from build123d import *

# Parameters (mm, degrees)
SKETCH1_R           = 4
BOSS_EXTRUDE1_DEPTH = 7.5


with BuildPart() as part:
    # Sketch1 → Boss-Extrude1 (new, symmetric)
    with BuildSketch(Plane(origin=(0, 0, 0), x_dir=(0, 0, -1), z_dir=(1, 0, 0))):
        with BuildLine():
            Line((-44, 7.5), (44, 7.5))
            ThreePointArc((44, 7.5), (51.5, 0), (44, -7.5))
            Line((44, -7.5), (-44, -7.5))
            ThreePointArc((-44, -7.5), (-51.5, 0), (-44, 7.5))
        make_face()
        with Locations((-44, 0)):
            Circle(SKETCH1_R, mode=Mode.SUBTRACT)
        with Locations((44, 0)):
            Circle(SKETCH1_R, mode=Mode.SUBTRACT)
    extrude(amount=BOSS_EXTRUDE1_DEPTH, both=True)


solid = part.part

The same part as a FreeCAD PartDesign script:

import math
import FreeCAD as App
import Part
import Sketcher
Q = App.Units.Quantity

doc = App.newDocument("Part")
body = doc.addObject("PartDesign::Body", "Body")

# Sketch on YZ plane
sketch1 = body.newObject("Sketcher::SketchObject", "Sketch")
sketch1.AttachmentSupport = (doc.getObject("YZ_Plane"), [""])
sketch1.MapMode = "FlatFace"
sketch1.addGeometry([
    Part.LineSegment(App.Vector(7.5, -44, 0), App.Vector(7.5, 44, 0)),  # 0
    Part.ArcOfCircle(Part.Circle(App.Vector(0, 44, 0), App.Vector(0, 0, 1), 7.5), math.radians(0), math.radians(180)),  # 1
    Part.LineSegment(App.Vector(-7.5, 44, 0), App.Vector(-7.5, -44, 0)),  # 2
    Part.ArcOfCircle(Part.Circle(App.Vector(0, -44, 0), App.Vector(0, 0, 1), 7.5), math.radians(180), math.radians(360)),  # 3
    Part.Circle(App.Vector(0, -44, 0), App.Vector(0, 0, 1), 4),  # 4
    Part.Circle(App.Vector(0, 44, 0), App.Vector(0, 0, 1), 4),  # 5
], False)
sketch1.addConstraint([
    Sketcher.Constraint("Tangent", 0, 2, 1, 1),
    Sketcher.Constraint("Tangent", 1, 2, 2, 1),
    Sketcher.Constraint("Tangent", 2, 2, 3, 1),
    Sketcher.Constraint("Tangent", 3, 2, 0, 1),
    Sketcher.Constraint("Vertical", 0),
    Sketcher.Constraint("Vertical", 2),
    Sketcher.Constraint("Coincident", 4, 3, 3, 3),
    Sketcher.Constraint("Coincident", 5, 3, 1, 3),
    Sketcher.Constraint("Equal", 4, 5),
    Sketcher.Constraint("Symmetric", 1, 3, 3, 3, -1, 1),
    Sketcher.Constraint("Diameter", 4, Q("8 mm")),
    Sketcher.Constraint("Radius", 1, Q("7.5 mm")),
    Sketcher.Constraint("DistanceY", 0, 1, 0, 2, Q("88 mm")),
])
pad1 = body.newObject("PartDesign::Pad", "Pad")
pad1.Profile = sketch1
pad1.Length = 15
pad1.Midplane = True

doc.recompute()
